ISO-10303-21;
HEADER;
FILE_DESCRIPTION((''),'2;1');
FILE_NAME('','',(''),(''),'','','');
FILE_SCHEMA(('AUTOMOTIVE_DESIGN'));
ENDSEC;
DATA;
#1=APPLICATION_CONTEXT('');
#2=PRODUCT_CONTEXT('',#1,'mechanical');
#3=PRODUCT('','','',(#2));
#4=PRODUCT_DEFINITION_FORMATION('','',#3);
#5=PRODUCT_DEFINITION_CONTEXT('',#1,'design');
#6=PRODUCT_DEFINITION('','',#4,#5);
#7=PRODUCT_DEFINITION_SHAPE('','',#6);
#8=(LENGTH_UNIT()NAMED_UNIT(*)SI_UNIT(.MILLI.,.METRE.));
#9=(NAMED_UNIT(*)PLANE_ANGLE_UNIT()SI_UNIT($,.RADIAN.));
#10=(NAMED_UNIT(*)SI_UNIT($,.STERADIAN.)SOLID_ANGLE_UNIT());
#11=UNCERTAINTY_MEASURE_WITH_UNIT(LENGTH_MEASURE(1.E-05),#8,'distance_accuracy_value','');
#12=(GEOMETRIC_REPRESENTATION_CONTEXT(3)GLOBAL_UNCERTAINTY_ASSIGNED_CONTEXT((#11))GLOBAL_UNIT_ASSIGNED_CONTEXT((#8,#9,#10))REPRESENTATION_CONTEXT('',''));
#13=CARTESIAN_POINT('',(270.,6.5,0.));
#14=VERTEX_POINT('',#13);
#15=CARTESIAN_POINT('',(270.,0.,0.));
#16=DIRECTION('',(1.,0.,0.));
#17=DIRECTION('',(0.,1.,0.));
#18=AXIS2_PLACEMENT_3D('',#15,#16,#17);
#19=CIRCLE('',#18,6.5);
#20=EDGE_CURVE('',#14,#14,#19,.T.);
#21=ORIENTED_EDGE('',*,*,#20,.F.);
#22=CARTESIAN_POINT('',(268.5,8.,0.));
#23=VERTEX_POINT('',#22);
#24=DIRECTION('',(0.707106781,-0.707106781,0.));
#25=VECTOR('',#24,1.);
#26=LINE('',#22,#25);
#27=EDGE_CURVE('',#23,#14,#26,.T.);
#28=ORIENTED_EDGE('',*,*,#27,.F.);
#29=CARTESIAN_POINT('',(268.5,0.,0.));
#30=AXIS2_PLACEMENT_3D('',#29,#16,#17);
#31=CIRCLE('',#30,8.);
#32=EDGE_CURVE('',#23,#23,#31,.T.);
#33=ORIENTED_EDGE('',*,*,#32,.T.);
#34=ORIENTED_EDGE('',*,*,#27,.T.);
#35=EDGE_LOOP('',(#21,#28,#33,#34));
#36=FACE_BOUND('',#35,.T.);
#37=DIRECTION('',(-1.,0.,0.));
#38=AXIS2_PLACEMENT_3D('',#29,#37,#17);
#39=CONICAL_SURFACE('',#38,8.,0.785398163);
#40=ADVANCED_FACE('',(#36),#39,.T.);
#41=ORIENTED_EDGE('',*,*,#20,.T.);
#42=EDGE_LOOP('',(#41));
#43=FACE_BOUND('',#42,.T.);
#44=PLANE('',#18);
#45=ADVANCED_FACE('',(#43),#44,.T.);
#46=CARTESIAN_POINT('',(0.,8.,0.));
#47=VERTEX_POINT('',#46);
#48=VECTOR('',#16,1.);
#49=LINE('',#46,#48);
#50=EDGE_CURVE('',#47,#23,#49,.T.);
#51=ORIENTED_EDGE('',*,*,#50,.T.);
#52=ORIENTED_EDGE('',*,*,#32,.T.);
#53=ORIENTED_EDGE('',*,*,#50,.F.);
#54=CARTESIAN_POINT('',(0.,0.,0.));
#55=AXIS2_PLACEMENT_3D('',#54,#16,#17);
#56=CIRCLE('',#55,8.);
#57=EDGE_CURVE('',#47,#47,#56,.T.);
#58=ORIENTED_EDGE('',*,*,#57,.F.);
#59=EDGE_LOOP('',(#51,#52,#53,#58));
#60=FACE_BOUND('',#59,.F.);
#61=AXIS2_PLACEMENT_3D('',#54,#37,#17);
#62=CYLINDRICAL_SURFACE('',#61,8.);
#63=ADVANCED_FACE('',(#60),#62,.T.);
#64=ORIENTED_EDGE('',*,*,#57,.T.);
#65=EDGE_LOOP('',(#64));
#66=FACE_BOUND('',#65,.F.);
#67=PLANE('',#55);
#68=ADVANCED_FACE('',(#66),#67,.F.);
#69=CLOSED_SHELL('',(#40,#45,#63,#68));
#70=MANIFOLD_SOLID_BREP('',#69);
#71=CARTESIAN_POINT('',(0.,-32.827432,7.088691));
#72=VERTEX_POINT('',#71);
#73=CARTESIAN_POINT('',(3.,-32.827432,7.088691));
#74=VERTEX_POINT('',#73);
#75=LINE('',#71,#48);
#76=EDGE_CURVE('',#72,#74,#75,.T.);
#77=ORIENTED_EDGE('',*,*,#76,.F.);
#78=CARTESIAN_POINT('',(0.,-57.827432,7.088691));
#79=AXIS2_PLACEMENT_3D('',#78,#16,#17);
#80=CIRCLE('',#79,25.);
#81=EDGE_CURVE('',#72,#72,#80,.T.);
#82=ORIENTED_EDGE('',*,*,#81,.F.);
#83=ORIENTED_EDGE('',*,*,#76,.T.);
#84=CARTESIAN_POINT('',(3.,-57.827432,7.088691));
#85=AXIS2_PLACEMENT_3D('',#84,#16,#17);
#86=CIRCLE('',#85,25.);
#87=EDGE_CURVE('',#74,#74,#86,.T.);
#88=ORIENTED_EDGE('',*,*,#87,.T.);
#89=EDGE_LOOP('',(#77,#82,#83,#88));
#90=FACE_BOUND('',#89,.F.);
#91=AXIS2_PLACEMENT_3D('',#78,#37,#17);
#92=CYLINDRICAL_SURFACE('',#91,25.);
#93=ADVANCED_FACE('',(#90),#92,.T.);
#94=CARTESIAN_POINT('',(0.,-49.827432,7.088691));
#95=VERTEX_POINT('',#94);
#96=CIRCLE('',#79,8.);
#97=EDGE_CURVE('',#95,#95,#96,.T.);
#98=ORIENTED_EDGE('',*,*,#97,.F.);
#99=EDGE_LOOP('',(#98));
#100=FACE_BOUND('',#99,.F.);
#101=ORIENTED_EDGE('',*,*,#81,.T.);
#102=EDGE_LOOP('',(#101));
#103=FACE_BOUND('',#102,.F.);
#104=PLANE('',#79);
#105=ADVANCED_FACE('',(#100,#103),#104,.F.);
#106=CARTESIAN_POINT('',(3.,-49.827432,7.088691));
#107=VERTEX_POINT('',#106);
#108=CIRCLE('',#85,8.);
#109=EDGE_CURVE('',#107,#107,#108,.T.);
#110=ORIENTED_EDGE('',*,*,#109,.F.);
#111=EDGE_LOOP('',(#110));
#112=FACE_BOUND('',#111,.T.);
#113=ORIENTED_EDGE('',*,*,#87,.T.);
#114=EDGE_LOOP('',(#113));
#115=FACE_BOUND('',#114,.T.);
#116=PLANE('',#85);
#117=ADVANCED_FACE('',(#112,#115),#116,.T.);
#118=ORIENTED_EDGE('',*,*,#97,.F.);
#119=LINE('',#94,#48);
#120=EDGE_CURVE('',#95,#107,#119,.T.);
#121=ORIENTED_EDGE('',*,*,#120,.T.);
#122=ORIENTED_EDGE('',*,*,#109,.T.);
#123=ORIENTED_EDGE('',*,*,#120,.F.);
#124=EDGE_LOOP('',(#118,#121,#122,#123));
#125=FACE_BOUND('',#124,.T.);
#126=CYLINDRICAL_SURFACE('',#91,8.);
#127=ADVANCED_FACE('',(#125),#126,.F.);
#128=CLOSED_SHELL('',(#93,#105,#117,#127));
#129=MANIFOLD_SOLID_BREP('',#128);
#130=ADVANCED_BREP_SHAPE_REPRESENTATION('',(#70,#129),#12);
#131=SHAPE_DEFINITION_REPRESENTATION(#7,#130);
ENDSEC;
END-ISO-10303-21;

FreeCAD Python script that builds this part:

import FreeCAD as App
import Part
import Sketcher
from FreeCAD import Vector


def edges_at(feature, points):
    """Names of the edges that pass closest to the given points."""
    edges = feature.Shape.Edges
    near = lambda p: min(range(len(edges)), key=lambda i: edges[i].distToShape(Part.Vertex(*p))[0])
    return sorted({f"Edge{near(p) + 1}" for p in points})

doc = App.newDocument("Part")
body = doc.addObject("PartDesign::Body", "Body")

# Sketch on YZ plane
sketch1 = body.newObject("Sketcher::SketchObject", "Sketch")
sketch1.AttachmentSupport = (doc.getObject("YZ_Plane"), [""])
sketch1.MapMode = "FlatFace"
sketch1.addGeometry(Part.Circle(Vector(0, 0, 0), Vector(0, 0, 1), 8), False)
sketch1.addConstraint(Sketcher.Constraint("Coincident", 0, 3, -1, 1))
sketch1.addConstraint(Sketcher.Constraint("Diameter", 0, 16.0))
pad1 = body.newObject("PartDesign::Pad", "Pad")
pad1.Profile = sketch1
pad1.Length = 270
doc.recompute()

chamfer = body.newObject("PartDesign::Chamfer", "Chamfer")
chamfer.Base = (pad1, edges_at(pad1, [(270, -8, 0)]))
chamfer.Size = 1.5
body2 = doc.addObject("PartDesign::Body", "Body001")

# Sketch on YZ plane
sketch2 = body2.newObject("Sketcher::SketchObject", "Sketch001")
sketch2.AttachmentSupport = (doc.getObject("YZ_Plane001"), [""])
sketch2.MapMode = "FlatFace"
sketch2.addGeometry(Part.Circle(Vector(-57.827432, 7.088691, 0), Vector(0, 0, 1), 25), False)
sketch2.addGeometry(Part.Circle(Vector(-57.827432, 7.088691, 0), Vector(0, 0, 1), 8), False)
sketch2.addConstraint(Sketcher.Constraint("Coincident", 1, 3, 0, 3))
sketch2.addConstraint(Sketcher.Constraint("Diameter", 0, 50.0))
sketch2.addConstraint(Sketcher.Constraint("Diameter", 1, 16.0))
sketch2.addConstraint(Sketcher.Constraint("DistanceY", -1, 1, 0, 3, 7.088691))
sketch2.addConstraint(Sketcher.Constraint("DistanceX", 0, 3, -1, 1, 57.827432))
pad2 = body2.newObject("PartDesign::Pad", "Pad001")
pad2.Profile = sketch2
pad2.Length = 3

doc.recompute()
